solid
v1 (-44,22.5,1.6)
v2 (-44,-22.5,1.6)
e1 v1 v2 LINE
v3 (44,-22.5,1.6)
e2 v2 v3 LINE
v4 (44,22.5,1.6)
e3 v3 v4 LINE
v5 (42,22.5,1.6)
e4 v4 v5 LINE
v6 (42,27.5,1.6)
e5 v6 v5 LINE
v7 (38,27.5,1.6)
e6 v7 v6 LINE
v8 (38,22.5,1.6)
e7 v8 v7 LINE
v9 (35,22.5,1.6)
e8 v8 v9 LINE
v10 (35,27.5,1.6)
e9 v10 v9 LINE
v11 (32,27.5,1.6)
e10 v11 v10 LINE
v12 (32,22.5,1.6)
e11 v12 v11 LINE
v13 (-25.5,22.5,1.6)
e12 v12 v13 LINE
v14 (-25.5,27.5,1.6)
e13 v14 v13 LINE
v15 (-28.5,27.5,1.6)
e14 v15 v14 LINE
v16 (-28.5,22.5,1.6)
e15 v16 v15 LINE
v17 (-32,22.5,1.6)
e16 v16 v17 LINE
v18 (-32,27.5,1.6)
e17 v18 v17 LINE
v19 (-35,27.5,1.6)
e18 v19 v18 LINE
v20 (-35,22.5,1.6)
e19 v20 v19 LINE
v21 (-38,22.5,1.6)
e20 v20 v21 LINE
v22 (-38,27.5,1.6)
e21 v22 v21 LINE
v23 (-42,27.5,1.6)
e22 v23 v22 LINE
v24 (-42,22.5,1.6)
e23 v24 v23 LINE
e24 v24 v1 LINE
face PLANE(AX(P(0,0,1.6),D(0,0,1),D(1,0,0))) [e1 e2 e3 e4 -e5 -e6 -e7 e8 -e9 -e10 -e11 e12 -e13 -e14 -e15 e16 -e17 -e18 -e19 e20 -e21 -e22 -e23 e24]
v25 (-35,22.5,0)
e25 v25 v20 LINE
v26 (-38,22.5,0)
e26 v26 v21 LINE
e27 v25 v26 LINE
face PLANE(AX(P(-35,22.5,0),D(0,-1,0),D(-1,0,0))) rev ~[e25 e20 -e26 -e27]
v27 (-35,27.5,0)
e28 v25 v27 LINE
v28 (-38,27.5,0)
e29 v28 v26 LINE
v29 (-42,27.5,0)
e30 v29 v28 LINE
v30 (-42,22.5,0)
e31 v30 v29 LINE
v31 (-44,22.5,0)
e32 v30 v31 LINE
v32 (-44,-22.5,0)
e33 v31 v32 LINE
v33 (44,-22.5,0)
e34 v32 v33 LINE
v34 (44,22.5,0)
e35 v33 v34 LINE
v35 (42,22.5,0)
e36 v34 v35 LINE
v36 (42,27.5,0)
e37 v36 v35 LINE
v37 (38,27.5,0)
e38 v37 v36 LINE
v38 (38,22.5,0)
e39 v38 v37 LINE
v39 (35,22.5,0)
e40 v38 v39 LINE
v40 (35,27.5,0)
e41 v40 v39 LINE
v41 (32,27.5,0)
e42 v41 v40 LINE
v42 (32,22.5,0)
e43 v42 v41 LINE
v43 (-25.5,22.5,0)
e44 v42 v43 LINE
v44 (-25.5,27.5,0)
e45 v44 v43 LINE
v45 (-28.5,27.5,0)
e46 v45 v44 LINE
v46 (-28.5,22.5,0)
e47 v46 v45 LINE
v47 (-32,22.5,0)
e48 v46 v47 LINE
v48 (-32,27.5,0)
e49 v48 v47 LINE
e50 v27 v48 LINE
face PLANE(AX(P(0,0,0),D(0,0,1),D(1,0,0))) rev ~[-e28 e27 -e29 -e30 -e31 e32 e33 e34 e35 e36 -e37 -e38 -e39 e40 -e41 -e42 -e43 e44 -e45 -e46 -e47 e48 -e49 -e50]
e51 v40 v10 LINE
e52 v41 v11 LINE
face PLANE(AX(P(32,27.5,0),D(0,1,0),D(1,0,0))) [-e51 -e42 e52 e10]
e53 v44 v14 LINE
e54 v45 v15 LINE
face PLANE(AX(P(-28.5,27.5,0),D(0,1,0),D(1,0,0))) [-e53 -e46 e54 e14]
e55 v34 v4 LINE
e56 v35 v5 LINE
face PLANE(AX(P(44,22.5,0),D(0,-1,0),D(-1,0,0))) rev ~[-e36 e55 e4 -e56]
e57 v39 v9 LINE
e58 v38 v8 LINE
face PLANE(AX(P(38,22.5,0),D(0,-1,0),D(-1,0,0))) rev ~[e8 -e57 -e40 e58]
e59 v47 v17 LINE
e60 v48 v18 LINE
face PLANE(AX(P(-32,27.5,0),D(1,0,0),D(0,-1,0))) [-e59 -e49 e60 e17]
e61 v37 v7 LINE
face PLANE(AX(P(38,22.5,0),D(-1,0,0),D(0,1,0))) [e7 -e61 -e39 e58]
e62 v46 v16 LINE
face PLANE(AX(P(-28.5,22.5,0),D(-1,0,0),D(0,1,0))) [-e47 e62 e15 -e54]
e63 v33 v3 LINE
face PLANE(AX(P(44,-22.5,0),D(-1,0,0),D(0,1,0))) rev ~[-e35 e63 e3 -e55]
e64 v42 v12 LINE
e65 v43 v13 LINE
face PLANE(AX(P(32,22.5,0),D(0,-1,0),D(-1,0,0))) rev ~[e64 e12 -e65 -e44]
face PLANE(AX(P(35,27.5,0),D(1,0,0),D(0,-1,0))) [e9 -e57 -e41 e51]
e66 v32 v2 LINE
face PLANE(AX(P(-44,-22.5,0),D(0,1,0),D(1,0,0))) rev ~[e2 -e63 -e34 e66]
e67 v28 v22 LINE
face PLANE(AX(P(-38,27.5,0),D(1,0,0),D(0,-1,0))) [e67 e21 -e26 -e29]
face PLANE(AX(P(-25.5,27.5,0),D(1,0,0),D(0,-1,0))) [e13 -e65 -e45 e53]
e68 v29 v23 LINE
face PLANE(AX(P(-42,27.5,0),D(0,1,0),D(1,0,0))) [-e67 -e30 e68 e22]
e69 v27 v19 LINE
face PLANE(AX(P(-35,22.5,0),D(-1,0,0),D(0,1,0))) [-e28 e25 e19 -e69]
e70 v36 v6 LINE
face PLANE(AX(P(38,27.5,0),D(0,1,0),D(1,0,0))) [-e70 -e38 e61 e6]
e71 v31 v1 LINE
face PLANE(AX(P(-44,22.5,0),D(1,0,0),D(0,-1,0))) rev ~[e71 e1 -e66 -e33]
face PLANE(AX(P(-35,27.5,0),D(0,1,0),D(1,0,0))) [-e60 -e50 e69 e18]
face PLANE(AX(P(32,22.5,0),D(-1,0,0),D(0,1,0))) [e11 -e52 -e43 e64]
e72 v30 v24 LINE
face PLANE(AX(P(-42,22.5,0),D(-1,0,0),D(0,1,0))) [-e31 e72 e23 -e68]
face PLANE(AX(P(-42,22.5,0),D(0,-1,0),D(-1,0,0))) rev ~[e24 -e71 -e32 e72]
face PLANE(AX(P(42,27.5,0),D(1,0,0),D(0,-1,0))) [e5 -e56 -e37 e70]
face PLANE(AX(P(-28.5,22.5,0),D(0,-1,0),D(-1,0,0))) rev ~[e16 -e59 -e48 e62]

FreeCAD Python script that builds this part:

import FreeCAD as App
import Part
import Sketcher
from FreeCAD import Vector


def add_polygon(sketch, points):
    """Adds a closed chain of lines whose ends are joined by coincident constraints."""
    first, n = sketch.GeometryCount, len(points)
    for a, b in zip(points, points[1:] + points[:1]):
        sketch.addGeometry(Part.LineSegment(App.Vector(*a, 0), App.Vector(*b, 0)), False)
    for i in range(n):
        sketch.addConstraint(Sketcher.Constraint("Coincident", first + i, 2, first + (i + 1) % n, 1))

doc = App.newDocument("Part")
params = doc.addObject("Spreadsheet::Sheet", "Params")
for row, (alias, value) in enumerate([
    ("sketch1_width", "88 mm"),
    ("sketch1_width2", "2 mm"),
    ("sketch1_width3", "4 mm"),
    ("sketch1_width4", "3 mm"),
    ("sketch1_height", "45 mm"),
    ("pad1_length", "1.6 mm"),
], start=1):
    params.set(f"A{row}", alias)
    params.set(f"B{row}", "=" + value)
    params.setAlias(f"B{row}", alias)

body = doc.addObject("PartDesign::Body", "Body")

# Sketch on XY plane
sketch1 = body.newObject("Sketcher::SketchObject", "Sketch")
sketch1.AttachmentSupport = (doc.getObject("XY_Plane"), [""])
sketch1.MapMode = "FlatFace"
add_polygon(sketch1, [(-44, 22.5), (-44, -22.5), (44, -22.5), (44, 22.5), (42, 22.5), (42, 27.5), (38, 27.5), (38, 22.5), (35, 22.5), (35, 27.5), (32, 27.5), (32, 22.5), (-25.5, 22.5), (-25.5, 27.5), (-28.5, 27.5), (-28.5, 22.5), (-32, 22.5), (-32, 27.5), (-35, 27.5), (-35, 22.5), (-38, 22.5), (-38, 27.5), (-42, 27.5), (-42, 22.5)])  # lines 0-23
sketch1.addConstraint(Sketcher.Constraint("Vertical", 0))
sketch1.addConstraint(Sketcher.Constraint("Horizontal", 1))
sketch1.addConstraint(Sketcher.Constraint("Vertical", 2))
sketch1.addConstraint(Sketcher.Constraint("Horizontal", 3))
sketch1.addConstraint(Sketcher.Constraint("Vertical", 4))
sketch1.addConstraint(Sketcher.Constraint("Horizontal", 5))
sketch1.addConstraint(Sketcher.Constraint("Vertical", 6))
sketch1.addConstraint(Sketcher.Constraint("Horizontal", 7))
sketch1.addConstraint(Sketcher.Constraint("Vertical", 8))
sketch1.addConstraint(Sketcher.Constraint("Horizontal", 9))
sketch1.addConstraint(Sketcher.Constraint("Vertical", 10))
sketch1.addConstraint(Sketcher.Constraint("Horizontal", 11))
sketch1.addConstraint(Sketcher.Constraint("Vertical", 12))
sketch1.addConstraint(Sketcher.Constraint("Horizontal", 13))
sketch1.addConstraint(Sketcher.Constraint("Vertical", 14))
sketch1.addConstraint(Sketcher.Constraint("Horizontal", 15))
sketch1.addConstraint(Sketcher.Constraint("Vertical", 16))
sketch1.addConstraint(Sketcher.Constraint("Horizontal", 17))
sketch1.addConstraint(Sketcher.Constraint("Vertical", 18))
sketch1.addConstraint(Sketcher.Constraint("Horizontal", 19))
sketch1.addConstraint(Sketcher.Constraint("Vertical", 20))
sketch1.addConstraint(Sketcher.Constraint("Horizontal", 21))
sketch1.addConstraint(Sketcher.Constraint("Vertical", 22))
sketch1.addConstraint(Sketcher.Constraint("Horizontal", 23))
sketch1.addConstraint(Sketcher.Constraint("Symmetric", 0, 2, 2, 2, -1, 1))
sketch1.addConstraint(Sketcher.Constraint("Symmetric", 10, 2, 15, 2, -2))
sketch1.addConstraint(Sketcher.Constraint("Symmetric", 8, 2, 17, 2, -2))
sketch1.addConstraint(Sketcher.Constraint("Symmetric", 6, 2, 19, 2, -2))
sketch1.addConstraint(Sketcher.Constraint("Symmetric", 4, 2, 21, 2, -2))
sketch1.addConstraint(Sketcher.Constraint("Horizontal", 3, 2, 6, 2))
sketch1.addConstraint(Sketcher.Constraint("Horizontal", 5, 2, 8, 2))
sketch1.addConstraint(Sketcher.Constraint("Horizontal", 7, 2, 10, 2))
sketch1.addConstraint(Sketcher.Constraint("Horizontal", 9, 2, 12, 2))
sketch1.addConstraint(Sketcher.Constraint("Horizontal", 19, 2, 22, 2))
sketch1.addConstraint(Sketcher.Constraint("Equal", 7, 9))
sketch1.addConstraint(Sketcher.Constraint("Equal", 9, 13))
sketch1.addConstraint(Sketcher.Constraint("DistanceX", 1, 1, 1, 2, 88.0))
sketch1.addConstraint(Sketcher.Constraint("DistanceX", 3, 2, 3, 1, 2.0))
sketch1.addConstraint(Sketcher.Constraint("DistanceX", 5, 2, 5, 1, 4.0))
sketch1.addConstraint(Sketcher.Constraint("DistanceX", 7, 2, 7, 1, 3.0))
sketch1.addConstraint(Sketcher.Constraint("DistanceY", 0, 2, 0, 1, 45.0))
sketch1.addConstraint(Sketcher.Constraint("DistanceY", 4, 1, 4, 2, 5.0))
sketch1.addConstraint(Sketcher.Constraint("DistanceX", 15, 2, 15, 1, 3.5))
sketch1.setExpression("Constraints[60]", "Params.sketch1_width")
sketch1.setExpression("Constraints[61]", "Params.sketch1_width2")
sketch1.setExpression("Constraints[62]", "Params.sketch1_width3")
sketch1.setExpression("Constraints[63]", "Params.sketch1_width4")
sketch1.setExpression("Constraints[64]", "Params.sketch1_height")
pad1 = body.newObject("PartDesign::Pad", "Pad")
pad1.Profile = sketch1
pad1.setExpression("Length", "Params.pad1_length")

doc.recompute()
